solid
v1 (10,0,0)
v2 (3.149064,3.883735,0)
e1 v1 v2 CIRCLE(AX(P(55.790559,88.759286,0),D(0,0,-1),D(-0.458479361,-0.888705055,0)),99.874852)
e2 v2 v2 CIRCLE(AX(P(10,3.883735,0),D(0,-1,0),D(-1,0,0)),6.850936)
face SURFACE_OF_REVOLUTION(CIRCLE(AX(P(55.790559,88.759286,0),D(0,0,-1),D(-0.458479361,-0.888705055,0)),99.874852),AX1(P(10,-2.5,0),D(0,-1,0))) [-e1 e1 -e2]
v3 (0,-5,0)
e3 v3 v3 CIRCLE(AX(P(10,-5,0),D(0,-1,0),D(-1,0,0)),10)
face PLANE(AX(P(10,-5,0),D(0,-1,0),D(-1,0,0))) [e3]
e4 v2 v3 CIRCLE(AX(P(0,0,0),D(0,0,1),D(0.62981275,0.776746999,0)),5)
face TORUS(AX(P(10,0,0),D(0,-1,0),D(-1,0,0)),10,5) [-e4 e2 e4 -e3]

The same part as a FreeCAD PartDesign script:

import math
import FreeCAD as App
import Part
import Sketcher

doc = App.newDocument("Part")
params = doc.addObject("Spreadsheet::Sheet", "Params")
for row, (alias, value) in enumerate([
    ("sketch1_radius", "5 mm"),
    ("sketch1_width", "10 mm"),
    ("revolution_angle", "360 deg"),
], start=1):
    params.set(f"A{row}", alias)
    params.set(f"B{row}", "=" + value)
    params.setAlias(f"B{row}", alias)

body = doc.addObject("PartDesign::Body", "Body")

# Sketch on XY plane
sketch1 = body.newObject("Sketcher::SketchObject", "Sketch")
sketch1.AttachmentSupport = (doc.getObject("XY_Plane"), [""])
sketch1.MapMode = "FlatFace"
sketch1.addGeometry([
    Part.ArcOfCircle(Part.Circle(App.Vector(0, 0, 0), App.Vector(0, 0, 1), 5), math.radians(50.963691), math.radians(269.999997)),
    Part.LineSegment(App.Vector(0, -5, 0), App.Vector(10, -5, 0)),
    Part.LineSegment(App.Vector(10, -5, 0), App.Vector(10, 0, 0)),
    Part.ArcOfCircle(Part.Circle(App.Vector(55.790559, 88.759286, 0), App.Vector(0, 0, 1), 99.874852), math.radians(-121.808007), math.radians(-117.289027)),
], False)
sketch1.addGeometry(Part.LineSegment(App.Vector(10, 88.759286, 0), App.Vector(10, -5, 0)), True)  # axis
sketch1.addConstraint([
    Sketcher.Constraint("Tangent", 0, 2, 1, 1),
    Sketcher.Constraint("Coincident", 1, 2, 2, 1),
    Sketcher.Constraint("Coincident", 2, 2, 3, 2),
    Sketcher.Constraint("Coincident", 3, 1, 0, 1),
    Sketcher.Constraint("Horizontal", 1),
    Sketcher.Constraint("Vertical", 2),
    Sketcher.Constraint("Vertical", 4),
    Sketcher.Constraint("Coincident", 0, 3, -1, 1),
    Sketcher.Constraint("Coincident", 4, 2, 1, 2),
    Sketcher.Constraint("PointOnObject", 2, 2, -1),
    Sketcher.Constraint("Horizontal", 3, 3, 4, 1),
    Sketcher.Constraint("Radius", 0, 5.0),
    Sketcher.Constraint("DistanceX", 1, 1, 1, 2, 10.0),
    Sketcher.Constraint("Radius", 3, 99.874852),
    Sketcher.Constraint("DistanceY", 4, 2, 4, 1, 93.759286),
])
sketch1.setExpression("Constraints[11]", "Params.sketch1_radius")
sketch1.setExpression("Constraints[12]", "Params.sketch1_width")
revolution = body.newObject("PartDesign::Revolution", "Revolution")
revolution.Profile = sketch1
revolution.ReferenceAxis = (sketch1, ["Axis0"])
revolution.setExpression("Angle", "Params.revolution_angle")

doc.recompute()
